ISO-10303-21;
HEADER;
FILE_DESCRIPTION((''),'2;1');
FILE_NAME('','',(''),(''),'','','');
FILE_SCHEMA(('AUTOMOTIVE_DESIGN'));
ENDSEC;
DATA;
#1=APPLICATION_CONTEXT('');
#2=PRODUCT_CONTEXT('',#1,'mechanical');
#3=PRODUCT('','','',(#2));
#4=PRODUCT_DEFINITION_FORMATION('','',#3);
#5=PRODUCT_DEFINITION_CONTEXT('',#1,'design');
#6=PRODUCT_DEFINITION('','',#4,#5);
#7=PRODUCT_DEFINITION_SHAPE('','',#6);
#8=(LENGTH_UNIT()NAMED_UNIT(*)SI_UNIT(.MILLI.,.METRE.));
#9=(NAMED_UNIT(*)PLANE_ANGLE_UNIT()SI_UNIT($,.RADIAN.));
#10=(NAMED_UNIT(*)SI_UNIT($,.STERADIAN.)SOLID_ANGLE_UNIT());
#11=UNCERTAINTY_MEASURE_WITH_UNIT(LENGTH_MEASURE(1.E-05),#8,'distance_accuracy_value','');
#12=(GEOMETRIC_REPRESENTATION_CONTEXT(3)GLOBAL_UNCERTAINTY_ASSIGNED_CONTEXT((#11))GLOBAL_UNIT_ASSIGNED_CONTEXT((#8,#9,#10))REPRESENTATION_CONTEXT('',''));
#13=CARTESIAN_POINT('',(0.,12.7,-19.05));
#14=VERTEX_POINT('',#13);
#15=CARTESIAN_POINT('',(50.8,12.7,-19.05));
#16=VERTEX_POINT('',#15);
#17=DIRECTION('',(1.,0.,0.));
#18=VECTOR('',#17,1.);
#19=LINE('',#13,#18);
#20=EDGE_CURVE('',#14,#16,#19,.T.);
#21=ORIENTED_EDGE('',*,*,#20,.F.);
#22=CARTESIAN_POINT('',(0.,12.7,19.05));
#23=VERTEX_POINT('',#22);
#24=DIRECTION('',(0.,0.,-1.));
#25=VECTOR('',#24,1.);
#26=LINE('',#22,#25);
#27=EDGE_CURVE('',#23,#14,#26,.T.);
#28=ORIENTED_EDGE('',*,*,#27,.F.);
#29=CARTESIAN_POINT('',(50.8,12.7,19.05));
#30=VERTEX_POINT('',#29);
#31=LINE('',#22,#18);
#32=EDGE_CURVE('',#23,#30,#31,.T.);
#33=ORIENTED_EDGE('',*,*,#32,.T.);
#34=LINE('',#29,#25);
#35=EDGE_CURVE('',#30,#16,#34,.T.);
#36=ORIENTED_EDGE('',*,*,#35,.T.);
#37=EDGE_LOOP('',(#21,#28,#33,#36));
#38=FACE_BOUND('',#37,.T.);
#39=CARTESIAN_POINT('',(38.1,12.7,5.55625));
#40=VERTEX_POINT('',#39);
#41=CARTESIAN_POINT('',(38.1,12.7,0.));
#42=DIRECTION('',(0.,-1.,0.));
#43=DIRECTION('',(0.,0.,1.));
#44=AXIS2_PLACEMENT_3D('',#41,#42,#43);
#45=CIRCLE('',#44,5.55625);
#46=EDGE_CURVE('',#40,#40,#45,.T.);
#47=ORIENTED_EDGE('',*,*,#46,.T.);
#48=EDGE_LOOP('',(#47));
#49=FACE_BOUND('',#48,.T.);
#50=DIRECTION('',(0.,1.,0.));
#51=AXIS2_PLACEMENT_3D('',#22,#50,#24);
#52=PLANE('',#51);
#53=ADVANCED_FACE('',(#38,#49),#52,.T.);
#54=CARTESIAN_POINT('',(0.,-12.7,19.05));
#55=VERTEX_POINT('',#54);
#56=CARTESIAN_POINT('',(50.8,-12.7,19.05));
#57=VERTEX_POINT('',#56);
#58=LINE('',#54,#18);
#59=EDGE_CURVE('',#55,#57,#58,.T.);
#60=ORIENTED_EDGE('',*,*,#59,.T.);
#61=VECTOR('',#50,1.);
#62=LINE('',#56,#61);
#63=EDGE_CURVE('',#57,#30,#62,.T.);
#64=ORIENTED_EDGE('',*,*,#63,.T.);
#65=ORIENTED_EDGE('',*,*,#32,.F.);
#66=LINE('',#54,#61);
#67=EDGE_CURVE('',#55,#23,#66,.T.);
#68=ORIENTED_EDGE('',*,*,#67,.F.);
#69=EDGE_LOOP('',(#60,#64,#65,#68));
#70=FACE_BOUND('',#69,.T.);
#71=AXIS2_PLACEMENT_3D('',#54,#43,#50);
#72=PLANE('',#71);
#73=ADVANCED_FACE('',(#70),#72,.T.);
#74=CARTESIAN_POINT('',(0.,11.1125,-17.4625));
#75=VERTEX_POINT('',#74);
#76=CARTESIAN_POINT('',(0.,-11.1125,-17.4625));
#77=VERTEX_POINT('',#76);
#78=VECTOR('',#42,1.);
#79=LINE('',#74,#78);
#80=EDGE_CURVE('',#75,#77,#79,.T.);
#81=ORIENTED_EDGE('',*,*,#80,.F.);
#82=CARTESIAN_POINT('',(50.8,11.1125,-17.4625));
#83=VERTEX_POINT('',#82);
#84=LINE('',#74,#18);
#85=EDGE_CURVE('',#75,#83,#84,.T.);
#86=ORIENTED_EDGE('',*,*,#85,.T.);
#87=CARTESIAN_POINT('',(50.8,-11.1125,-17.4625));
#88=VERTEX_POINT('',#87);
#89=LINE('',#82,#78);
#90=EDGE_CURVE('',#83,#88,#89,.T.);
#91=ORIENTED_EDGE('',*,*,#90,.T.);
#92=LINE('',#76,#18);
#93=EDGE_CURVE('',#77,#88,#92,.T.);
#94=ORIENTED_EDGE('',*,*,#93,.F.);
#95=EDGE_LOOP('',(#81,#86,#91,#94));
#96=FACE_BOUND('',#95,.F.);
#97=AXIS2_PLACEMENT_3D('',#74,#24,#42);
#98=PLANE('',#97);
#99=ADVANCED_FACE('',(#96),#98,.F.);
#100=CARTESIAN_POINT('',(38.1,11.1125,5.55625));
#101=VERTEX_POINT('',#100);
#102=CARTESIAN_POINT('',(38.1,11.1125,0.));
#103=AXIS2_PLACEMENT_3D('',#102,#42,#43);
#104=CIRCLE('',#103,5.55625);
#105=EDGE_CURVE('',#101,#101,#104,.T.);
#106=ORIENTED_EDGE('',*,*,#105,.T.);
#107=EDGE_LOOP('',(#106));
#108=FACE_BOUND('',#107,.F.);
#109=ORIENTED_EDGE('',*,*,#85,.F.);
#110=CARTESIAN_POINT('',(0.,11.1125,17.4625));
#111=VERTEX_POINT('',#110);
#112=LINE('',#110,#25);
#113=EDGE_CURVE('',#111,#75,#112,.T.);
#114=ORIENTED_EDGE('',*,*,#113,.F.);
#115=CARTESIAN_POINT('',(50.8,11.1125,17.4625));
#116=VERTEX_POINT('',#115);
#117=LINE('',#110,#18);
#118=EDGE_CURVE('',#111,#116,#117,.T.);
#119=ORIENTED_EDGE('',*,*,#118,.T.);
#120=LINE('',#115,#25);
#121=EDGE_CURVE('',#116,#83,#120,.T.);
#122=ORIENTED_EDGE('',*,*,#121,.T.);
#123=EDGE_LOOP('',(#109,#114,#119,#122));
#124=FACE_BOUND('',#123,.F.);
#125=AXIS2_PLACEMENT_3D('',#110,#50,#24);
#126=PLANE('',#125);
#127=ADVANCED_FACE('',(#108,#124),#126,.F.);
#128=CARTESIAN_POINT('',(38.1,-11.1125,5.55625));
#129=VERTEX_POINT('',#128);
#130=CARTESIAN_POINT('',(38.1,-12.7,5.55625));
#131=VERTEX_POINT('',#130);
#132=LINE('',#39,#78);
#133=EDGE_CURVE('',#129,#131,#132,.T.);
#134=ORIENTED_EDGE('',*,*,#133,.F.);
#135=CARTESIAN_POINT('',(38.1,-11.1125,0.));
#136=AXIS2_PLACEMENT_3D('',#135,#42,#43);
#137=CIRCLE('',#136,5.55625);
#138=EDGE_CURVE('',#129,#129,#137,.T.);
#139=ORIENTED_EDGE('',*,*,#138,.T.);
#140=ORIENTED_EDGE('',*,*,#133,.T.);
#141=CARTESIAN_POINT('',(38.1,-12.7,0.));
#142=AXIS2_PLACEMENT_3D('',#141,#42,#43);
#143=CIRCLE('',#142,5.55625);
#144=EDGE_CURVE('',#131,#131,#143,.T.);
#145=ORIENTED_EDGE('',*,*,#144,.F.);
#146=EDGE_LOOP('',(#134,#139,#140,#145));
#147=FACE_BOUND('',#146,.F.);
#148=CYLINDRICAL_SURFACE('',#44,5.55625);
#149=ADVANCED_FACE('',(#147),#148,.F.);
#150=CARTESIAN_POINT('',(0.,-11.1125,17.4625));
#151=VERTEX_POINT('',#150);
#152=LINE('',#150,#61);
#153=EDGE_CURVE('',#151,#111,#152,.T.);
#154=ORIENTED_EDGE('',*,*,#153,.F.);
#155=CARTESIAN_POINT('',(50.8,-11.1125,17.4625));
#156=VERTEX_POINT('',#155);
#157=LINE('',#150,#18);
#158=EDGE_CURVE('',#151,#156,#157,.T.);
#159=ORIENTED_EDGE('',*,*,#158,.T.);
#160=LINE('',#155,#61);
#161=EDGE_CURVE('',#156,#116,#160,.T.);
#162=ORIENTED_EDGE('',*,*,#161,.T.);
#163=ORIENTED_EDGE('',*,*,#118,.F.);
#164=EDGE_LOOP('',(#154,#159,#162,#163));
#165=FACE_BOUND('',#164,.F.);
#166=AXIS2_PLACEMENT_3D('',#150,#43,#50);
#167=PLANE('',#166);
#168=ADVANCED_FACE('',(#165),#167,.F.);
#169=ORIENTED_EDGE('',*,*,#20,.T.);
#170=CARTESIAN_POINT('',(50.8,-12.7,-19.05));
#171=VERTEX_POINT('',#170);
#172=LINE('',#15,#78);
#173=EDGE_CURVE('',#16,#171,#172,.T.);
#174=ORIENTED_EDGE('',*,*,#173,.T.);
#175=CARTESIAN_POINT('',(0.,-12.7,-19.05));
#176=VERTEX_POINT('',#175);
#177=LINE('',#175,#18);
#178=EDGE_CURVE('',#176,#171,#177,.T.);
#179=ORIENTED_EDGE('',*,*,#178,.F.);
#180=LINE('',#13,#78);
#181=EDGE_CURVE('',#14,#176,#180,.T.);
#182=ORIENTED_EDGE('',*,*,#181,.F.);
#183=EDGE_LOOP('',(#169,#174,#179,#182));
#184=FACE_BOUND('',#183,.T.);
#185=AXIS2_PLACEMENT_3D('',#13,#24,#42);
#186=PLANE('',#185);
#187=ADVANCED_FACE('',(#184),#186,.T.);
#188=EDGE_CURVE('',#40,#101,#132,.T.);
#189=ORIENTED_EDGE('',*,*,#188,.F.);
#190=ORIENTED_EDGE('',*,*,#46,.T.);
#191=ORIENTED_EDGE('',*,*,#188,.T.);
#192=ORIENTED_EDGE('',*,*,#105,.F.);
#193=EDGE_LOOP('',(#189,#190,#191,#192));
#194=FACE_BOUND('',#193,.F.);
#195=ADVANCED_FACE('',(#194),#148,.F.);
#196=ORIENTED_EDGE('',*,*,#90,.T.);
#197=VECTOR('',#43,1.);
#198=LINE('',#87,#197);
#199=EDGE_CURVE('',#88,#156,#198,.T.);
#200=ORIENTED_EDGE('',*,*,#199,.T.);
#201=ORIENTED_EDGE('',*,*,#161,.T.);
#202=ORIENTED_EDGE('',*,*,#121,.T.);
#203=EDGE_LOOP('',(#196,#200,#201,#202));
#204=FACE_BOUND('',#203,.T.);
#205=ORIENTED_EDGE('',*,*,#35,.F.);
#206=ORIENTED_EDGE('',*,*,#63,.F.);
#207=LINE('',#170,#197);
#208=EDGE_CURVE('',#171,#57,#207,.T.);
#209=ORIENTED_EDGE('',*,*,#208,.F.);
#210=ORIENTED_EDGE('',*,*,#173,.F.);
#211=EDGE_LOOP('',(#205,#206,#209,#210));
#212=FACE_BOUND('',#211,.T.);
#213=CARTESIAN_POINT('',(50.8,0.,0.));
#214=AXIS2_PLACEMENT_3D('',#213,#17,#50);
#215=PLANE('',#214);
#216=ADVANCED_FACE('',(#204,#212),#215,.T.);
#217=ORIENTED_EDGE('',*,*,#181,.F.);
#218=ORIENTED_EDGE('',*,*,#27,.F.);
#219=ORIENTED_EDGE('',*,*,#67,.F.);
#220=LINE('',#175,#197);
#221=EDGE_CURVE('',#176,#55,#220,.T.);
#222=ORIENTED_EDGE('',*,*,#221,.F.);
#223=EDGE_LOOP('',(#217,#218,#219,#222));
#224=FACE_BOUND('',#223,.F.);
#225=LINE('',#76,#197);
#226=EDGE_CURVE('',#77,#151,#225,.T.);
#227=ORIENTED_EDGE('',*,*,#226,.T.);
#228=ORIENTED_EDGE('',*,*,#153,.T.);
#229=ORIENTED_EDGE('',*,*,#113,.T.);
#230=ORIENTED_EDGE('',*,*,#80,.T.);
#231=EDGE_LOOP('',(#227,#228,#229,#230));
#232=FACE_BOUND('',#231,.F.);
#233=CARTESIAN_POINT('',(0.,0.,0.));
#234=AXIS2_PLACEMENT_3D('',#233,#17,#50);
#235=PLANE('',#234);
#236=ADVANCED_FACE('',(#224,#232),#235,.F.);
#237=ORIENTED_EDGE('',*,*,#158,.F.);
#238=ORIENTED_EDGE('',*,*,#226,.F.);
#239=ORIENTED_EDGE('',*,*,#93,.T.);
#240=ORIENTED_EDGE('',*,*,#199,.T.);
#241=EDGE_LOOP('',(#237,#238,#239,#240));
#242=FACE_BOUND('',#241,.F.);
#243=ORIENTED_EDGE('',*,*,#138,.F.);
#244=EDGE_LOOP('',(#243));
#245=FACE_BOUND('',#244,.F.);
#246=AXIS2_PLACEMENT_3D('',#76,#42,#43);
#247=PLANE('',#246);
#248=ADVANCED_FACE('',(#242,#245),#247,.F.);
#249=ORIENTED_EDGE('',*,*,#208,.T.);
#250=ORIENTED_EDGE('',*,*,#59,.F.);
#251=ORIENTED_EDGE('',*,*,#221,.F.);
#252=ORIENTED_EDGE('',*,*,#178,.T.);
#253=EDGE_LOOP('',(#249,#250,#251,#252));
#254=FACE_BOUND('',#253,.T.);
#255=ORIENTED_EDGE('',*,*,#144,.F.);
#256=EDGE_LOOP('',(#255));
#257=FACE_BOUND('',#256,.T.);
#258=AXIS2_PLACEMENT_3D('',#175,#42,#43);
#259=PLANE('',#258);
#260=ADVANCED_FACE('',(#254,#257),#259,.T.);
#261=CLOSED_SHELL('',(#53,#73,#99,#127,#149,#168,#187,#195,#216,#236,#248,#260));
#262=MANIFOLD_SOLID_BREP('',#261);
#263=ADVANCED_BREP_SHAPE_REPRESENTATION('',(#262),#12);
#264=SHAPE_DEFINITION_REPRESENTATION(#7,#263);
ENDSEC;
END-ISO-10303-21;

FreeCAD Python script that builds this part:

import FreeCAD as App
import Part
import Sketcher
from FreeCAD import Vector
Q = App.Units.Quantity


def add_polygon(sketch, points):
    """Adds a closed chain of lines whose ends are joined by coincident constraints."""
    first, n = sketch.GeometryCount, len(points)
    for a, b in zip(points, points[1:] + points[:1]):
        sketch.addGeometry(Part.LineSegment(App.Vector(*a, 0), App.Vector(*b, 0)), False)
    for i in range(n):
        sketch.addConstraint(Sketcher.Constraint("Coincident", first + i, 2, first + (i + 1) % n, 1))

doc = App.newDocument("Part")
body = doc.addObject("PartDesign::Body", "Body")

sketch1 = doc.addObject("Sketcher::SketchObject", "Sketch")
body.addObject(sketch1)
sketch1.AttachmentSupport = (doc.YZ_Plane, [""])
sketch1.MapMode = "FlatFace"
add_polygon(sketch1, [(12.7, 19.05), (-12.7, 19.05), (-12.7, -19.05), (12.7, -19.05)])
add_polygon(sketch1, [(-11.1125, -17.4625), (-11.1125, 17.4625), (11.1125, 17.4625), (11.1125, -17.4625)])
sketch1.addConstraint([
    Sketcher.Constraint("Horizontal", 0),
    Sketcher.Constraint("Vertical", 1),
    Sketcher.Constraint("Horizontal", 2),
    Sketcher.Constraint("Vertical", 3),
    Sketcher.Constraint("Vertical", 4),
    Sketcher.Constraint("Horizontal", 5),
    Sketcher.Constraint("Vertical", 6),
    Sketcher.Constraint("Horizontal", 7),
    Sketcher.Constraint("Symmetric", 0, 2, 2, 2, -1, 1),
    Sketcher.Constraint("Symmetric", 4, 2, 6, 2, -1, 1),
    Sketcher.Constraint("DistanceX", 0, 2, 0, 1, Q("1 in")),
    Sketcher.Constraint("DistanceY", 1, 2, 1, 1, Q("1.5 in")),
    Sketcher.Constraint("DistanceX", 0, 2, 4, 2, Q("0.0625 in")),
    Sketcher.Constraint("DistanceY", 4, 2, 0, 2, Q("0.0625 in")),
])
pad1 = doc.addObject("PartDesign::Pad", "Pad")
body.addObject(pad1)
pad1.Profile = sketch1
pad1.Length = Q("2 in")

sketch2 = doc.addObject("Sketcher::SketchObject", "Sketch001")
body.addObject(sketch2)
sketch2.AttachmentSupport = (doc.XZ_Plane, [""])
sketch2.MapMode = "FlatFace"
sketch2.AttachmentOffset = App.Placement(Vector(0, 0, -0.5 * 25.4), App.Rotation())
sketch2.addGeometry(Part.Circle(Vector(38.1, 0, 0), Vector(0, 0, 1), 5.55625), False)
sketch2.addConstraint([
    Sketcher.Constraint("PointOnObject", 0, 3, -1),
    Sketcher.Constraint("Diameter", 0, Q("0.4375 in")),
    Sketcher.Constraint("DistanceX", -1, 1, 0, 3, Q("1.5 in")),
])
doc.recompute()
hole = doc.addObject("PartDesign::Hole", "Hole")
body.addObject(hole)
hole.Profile = sketch2
hole.ThreadType = "None"
hole.Diameter = Q("0.4375 in")
hole.DepthType = "ThroughAll"
hole.Reversed = True

doc.recompute()
